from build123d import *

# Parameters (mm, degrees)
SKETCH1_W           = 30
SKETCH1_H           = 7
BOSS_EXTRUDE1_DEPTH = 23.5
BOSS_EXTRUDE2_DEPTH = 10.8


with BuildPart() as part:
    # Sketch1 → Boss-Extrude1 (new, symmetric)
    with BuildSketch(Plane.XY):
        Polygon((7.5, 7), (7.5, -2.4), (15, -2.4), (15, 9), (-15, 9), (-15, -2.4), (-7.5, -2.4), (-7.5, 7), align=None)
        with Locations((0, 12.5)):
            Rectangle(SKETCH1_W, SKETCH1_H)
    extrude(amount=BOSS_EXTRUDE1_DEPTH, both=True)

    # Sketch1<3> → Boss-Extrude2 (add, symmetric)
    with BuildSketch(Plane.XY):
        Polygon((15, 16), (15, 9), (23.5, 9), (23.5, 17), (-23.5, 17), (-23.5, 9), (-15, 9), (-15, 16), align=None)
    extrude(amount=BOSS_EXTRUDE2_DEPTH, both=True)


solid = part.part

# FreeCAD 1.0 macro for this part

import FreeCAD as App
import Part
import Sketcher
from FreeCAD import Vector

doc = App.newDocument("Part")
body = doc.addObject("PartDesign::Body", "Body")

sketch1 = body.newObject("Sketcher::SketchObject", "Sketch")
sketch1.AttachmentSupport = (doc.getObject("XY_Plane"), [""])
sketch1.MapMode = "FlatFace"
sketch1.addGeometry([
    Part.LineSegment(Vector(7.5, 7, 0), Vector(7.5, -2.4, 0)),
    Part.LineSegment(Vector(7.5, -2.4, 0), Vector(15, -2.4, 0)),
    Part.LineSegment(Vector(15, -2.4, 0), Vector(15, 16, 0)),
    Part.LineSegment(Vector(15, 16, 0), Vector(-15, 16, 0)),
    Part.LineSegment(Vector(-15, 16, 0), Vector(-15, -2.4, 0)),
    Part.LineSegment(Vector(-15, -2.4, 0), Vector(-7.5, -2.4, 0)),
    Part.LineSegment(Vector(-7.5, -2.4, 0), Vector(-7.5, 7, 0)),
    Part.LineSegment(Vector(-7.5, 7, 0), Vector(7.5, 7, 0)),
], False)
sketch1.addConstraint([
    Sketcher.Constraint("Coincident", 0, 2, 1, 1),
    Sketcher.Constraint("Coincident", 1, 2, 2, 1),
    Sketcher.Constraint("Coincident", 2, 2, 3, 1),
    Sketcher.Constraint("Coincident", 3, 2, 4, 1),
    Sketcher.Constraint("Coincident", 4, 2, 5, 1),
    Sketcher.Constraint("Coincident", 5, 2, 6, 1),
    Sketcher.Constraint("Coincident", 6, 2, 7, 1),
    Sketcher.Constraint("Coincident", 7, 2, 0, 1),
    Sketcher.Constraint("Vertical", 0),
    Sketcher.Constraint("Horizontal", 1),
    Sketcher.Constraint("Vertical", 2),
    Sketcher.Constraint("Horizontal", 3),
    Sketcher.Constraint("Vertical", 4),
    Sketcher.Constraint("Horizontal", 5),
    Sketcher.Constraint("Vertical", 6),
    Sketcher.Constraint("Horizontal", 7),
    Sketcher.Constraint("Symmetric", 1, 2, 4, 2, -2),
    Sketcher.Constraint("Equal", 1, 5),
    Sketcher.Constraint("DistanceX", 3, 2, 3, 1, 30.0),
    Sketcher.Constraint("DistanceX", 7, 1, 7, 2, 15.0),
    Sketcher.Constraint("DistanceY", 0, 2, 0, 1, 9.4),
    Sketcher.Constraint("DistanceY", 2, 1, 2, 2, 18.4),
    Sketcher.Constraint("DistanceY", -1, 1, 2, 2, 16.0),
])
pad1 = body.newObject("PartDesign::Pad", "Pad")
pad1.Profile = sketch1
pad1.Length = 47
pad1.Midplane = True

sketch2 = body.newObject("Sketcher::SketchObject", "Sketch001")
sketch2.AttachmentSupport = (doc.getObject("XY_Plane"), [""])
sketch2.MapMode = "FlatFace"
sketch2.addGeometry([
    Part.LineSegment(Vector(15, 16, 0), Vector(15, 9, 0)),
    Part.LineSegment(Vector(15, 9, 0), Vector(23.5, 9, 0)),
    Part.LineSegment(Vector(23.5, 9, 0), Vector(23.5, 17, 0)),
    Part.LineSegment(Vector(23.5, 17, 0), Vector(-23.5, 17, 0)),
    Part.LineSegment(Vector(-23.5, 17, 0), Vector(-23.5, 9, 0)),
    Part.LineSegment(Vector(-23.5, 9, 0), Vector(-15, 9, 0)),
    Part.LineSegment(Vector(-15, 9, 0), Vector(-15, 16, 0)),
    Part.LineSegment(Vector(-15, 16, 0), Vector(15, 16, 0)),
], False)
sketch2.addConstraint([
    Sketcher.Constraint("Coincident", 0, 2, 1, 1),
    Sketcher.Constraint("Coincident", 1, 2, 2, 1),
    Sketcher.Constraint("Coincident", 2, 2, 3, 1),
    Sketcher.Constraint("Coincident", 3, 2, 4, 1),
    Sketcher.Constraint("Coincident", 4, 2, 5, 1),
    Sketcher.Constraint("Coincident", 5, 2, 6, 1),
    Sketcher.Constraint("Coincident", 6, 2, 7, 1),
    Sketcher.Constraint("Coincident", 7, 2, 0, 1),
    Sketcher.Constraint("Vertical", 0),
    Sketcher.Constraint("Horizontal", 1),
    Sketcher.Constraint("Vertical", 2),
    Sketcher.Constraint("Horizontal", 3),
    Sketcher.Constraint("Vertical", 4),
    Sketcher.Constraint("Horizontal", 5),
    Sketcher.Constraint("Vertical", 6),
    Sketcher.Constraint("Horizontal", 7),
    Sketcher.Constraint("Symmetric", 1, 2, 4, 2, -2),
    Sketcher.Constraint("Equal", 1, 5),
    Sketcher.Constraint("DistanceX", 3, 2, 3, 1, 47.0),
    Sketcher.Constraint("DistanceX", 7, 1, 7, 2, 30.0),
    Sketcher.Constraint("DistanceY", 0, 2, 0, 1, 7.0),
    Sketcher.Constraint("DistanceY", 2, 1, 2, 2, 8.0),
    Sketcher.Constraint("DistanceY", -1, 1, 0, 2, 9.0),
])
pad2 = body.newObject("PartDesign::Pad", "Pad001")
pad2.Profile = sketch2
pad2.Length = 21.6
pad2.Midplane = True

doc.recompute()
